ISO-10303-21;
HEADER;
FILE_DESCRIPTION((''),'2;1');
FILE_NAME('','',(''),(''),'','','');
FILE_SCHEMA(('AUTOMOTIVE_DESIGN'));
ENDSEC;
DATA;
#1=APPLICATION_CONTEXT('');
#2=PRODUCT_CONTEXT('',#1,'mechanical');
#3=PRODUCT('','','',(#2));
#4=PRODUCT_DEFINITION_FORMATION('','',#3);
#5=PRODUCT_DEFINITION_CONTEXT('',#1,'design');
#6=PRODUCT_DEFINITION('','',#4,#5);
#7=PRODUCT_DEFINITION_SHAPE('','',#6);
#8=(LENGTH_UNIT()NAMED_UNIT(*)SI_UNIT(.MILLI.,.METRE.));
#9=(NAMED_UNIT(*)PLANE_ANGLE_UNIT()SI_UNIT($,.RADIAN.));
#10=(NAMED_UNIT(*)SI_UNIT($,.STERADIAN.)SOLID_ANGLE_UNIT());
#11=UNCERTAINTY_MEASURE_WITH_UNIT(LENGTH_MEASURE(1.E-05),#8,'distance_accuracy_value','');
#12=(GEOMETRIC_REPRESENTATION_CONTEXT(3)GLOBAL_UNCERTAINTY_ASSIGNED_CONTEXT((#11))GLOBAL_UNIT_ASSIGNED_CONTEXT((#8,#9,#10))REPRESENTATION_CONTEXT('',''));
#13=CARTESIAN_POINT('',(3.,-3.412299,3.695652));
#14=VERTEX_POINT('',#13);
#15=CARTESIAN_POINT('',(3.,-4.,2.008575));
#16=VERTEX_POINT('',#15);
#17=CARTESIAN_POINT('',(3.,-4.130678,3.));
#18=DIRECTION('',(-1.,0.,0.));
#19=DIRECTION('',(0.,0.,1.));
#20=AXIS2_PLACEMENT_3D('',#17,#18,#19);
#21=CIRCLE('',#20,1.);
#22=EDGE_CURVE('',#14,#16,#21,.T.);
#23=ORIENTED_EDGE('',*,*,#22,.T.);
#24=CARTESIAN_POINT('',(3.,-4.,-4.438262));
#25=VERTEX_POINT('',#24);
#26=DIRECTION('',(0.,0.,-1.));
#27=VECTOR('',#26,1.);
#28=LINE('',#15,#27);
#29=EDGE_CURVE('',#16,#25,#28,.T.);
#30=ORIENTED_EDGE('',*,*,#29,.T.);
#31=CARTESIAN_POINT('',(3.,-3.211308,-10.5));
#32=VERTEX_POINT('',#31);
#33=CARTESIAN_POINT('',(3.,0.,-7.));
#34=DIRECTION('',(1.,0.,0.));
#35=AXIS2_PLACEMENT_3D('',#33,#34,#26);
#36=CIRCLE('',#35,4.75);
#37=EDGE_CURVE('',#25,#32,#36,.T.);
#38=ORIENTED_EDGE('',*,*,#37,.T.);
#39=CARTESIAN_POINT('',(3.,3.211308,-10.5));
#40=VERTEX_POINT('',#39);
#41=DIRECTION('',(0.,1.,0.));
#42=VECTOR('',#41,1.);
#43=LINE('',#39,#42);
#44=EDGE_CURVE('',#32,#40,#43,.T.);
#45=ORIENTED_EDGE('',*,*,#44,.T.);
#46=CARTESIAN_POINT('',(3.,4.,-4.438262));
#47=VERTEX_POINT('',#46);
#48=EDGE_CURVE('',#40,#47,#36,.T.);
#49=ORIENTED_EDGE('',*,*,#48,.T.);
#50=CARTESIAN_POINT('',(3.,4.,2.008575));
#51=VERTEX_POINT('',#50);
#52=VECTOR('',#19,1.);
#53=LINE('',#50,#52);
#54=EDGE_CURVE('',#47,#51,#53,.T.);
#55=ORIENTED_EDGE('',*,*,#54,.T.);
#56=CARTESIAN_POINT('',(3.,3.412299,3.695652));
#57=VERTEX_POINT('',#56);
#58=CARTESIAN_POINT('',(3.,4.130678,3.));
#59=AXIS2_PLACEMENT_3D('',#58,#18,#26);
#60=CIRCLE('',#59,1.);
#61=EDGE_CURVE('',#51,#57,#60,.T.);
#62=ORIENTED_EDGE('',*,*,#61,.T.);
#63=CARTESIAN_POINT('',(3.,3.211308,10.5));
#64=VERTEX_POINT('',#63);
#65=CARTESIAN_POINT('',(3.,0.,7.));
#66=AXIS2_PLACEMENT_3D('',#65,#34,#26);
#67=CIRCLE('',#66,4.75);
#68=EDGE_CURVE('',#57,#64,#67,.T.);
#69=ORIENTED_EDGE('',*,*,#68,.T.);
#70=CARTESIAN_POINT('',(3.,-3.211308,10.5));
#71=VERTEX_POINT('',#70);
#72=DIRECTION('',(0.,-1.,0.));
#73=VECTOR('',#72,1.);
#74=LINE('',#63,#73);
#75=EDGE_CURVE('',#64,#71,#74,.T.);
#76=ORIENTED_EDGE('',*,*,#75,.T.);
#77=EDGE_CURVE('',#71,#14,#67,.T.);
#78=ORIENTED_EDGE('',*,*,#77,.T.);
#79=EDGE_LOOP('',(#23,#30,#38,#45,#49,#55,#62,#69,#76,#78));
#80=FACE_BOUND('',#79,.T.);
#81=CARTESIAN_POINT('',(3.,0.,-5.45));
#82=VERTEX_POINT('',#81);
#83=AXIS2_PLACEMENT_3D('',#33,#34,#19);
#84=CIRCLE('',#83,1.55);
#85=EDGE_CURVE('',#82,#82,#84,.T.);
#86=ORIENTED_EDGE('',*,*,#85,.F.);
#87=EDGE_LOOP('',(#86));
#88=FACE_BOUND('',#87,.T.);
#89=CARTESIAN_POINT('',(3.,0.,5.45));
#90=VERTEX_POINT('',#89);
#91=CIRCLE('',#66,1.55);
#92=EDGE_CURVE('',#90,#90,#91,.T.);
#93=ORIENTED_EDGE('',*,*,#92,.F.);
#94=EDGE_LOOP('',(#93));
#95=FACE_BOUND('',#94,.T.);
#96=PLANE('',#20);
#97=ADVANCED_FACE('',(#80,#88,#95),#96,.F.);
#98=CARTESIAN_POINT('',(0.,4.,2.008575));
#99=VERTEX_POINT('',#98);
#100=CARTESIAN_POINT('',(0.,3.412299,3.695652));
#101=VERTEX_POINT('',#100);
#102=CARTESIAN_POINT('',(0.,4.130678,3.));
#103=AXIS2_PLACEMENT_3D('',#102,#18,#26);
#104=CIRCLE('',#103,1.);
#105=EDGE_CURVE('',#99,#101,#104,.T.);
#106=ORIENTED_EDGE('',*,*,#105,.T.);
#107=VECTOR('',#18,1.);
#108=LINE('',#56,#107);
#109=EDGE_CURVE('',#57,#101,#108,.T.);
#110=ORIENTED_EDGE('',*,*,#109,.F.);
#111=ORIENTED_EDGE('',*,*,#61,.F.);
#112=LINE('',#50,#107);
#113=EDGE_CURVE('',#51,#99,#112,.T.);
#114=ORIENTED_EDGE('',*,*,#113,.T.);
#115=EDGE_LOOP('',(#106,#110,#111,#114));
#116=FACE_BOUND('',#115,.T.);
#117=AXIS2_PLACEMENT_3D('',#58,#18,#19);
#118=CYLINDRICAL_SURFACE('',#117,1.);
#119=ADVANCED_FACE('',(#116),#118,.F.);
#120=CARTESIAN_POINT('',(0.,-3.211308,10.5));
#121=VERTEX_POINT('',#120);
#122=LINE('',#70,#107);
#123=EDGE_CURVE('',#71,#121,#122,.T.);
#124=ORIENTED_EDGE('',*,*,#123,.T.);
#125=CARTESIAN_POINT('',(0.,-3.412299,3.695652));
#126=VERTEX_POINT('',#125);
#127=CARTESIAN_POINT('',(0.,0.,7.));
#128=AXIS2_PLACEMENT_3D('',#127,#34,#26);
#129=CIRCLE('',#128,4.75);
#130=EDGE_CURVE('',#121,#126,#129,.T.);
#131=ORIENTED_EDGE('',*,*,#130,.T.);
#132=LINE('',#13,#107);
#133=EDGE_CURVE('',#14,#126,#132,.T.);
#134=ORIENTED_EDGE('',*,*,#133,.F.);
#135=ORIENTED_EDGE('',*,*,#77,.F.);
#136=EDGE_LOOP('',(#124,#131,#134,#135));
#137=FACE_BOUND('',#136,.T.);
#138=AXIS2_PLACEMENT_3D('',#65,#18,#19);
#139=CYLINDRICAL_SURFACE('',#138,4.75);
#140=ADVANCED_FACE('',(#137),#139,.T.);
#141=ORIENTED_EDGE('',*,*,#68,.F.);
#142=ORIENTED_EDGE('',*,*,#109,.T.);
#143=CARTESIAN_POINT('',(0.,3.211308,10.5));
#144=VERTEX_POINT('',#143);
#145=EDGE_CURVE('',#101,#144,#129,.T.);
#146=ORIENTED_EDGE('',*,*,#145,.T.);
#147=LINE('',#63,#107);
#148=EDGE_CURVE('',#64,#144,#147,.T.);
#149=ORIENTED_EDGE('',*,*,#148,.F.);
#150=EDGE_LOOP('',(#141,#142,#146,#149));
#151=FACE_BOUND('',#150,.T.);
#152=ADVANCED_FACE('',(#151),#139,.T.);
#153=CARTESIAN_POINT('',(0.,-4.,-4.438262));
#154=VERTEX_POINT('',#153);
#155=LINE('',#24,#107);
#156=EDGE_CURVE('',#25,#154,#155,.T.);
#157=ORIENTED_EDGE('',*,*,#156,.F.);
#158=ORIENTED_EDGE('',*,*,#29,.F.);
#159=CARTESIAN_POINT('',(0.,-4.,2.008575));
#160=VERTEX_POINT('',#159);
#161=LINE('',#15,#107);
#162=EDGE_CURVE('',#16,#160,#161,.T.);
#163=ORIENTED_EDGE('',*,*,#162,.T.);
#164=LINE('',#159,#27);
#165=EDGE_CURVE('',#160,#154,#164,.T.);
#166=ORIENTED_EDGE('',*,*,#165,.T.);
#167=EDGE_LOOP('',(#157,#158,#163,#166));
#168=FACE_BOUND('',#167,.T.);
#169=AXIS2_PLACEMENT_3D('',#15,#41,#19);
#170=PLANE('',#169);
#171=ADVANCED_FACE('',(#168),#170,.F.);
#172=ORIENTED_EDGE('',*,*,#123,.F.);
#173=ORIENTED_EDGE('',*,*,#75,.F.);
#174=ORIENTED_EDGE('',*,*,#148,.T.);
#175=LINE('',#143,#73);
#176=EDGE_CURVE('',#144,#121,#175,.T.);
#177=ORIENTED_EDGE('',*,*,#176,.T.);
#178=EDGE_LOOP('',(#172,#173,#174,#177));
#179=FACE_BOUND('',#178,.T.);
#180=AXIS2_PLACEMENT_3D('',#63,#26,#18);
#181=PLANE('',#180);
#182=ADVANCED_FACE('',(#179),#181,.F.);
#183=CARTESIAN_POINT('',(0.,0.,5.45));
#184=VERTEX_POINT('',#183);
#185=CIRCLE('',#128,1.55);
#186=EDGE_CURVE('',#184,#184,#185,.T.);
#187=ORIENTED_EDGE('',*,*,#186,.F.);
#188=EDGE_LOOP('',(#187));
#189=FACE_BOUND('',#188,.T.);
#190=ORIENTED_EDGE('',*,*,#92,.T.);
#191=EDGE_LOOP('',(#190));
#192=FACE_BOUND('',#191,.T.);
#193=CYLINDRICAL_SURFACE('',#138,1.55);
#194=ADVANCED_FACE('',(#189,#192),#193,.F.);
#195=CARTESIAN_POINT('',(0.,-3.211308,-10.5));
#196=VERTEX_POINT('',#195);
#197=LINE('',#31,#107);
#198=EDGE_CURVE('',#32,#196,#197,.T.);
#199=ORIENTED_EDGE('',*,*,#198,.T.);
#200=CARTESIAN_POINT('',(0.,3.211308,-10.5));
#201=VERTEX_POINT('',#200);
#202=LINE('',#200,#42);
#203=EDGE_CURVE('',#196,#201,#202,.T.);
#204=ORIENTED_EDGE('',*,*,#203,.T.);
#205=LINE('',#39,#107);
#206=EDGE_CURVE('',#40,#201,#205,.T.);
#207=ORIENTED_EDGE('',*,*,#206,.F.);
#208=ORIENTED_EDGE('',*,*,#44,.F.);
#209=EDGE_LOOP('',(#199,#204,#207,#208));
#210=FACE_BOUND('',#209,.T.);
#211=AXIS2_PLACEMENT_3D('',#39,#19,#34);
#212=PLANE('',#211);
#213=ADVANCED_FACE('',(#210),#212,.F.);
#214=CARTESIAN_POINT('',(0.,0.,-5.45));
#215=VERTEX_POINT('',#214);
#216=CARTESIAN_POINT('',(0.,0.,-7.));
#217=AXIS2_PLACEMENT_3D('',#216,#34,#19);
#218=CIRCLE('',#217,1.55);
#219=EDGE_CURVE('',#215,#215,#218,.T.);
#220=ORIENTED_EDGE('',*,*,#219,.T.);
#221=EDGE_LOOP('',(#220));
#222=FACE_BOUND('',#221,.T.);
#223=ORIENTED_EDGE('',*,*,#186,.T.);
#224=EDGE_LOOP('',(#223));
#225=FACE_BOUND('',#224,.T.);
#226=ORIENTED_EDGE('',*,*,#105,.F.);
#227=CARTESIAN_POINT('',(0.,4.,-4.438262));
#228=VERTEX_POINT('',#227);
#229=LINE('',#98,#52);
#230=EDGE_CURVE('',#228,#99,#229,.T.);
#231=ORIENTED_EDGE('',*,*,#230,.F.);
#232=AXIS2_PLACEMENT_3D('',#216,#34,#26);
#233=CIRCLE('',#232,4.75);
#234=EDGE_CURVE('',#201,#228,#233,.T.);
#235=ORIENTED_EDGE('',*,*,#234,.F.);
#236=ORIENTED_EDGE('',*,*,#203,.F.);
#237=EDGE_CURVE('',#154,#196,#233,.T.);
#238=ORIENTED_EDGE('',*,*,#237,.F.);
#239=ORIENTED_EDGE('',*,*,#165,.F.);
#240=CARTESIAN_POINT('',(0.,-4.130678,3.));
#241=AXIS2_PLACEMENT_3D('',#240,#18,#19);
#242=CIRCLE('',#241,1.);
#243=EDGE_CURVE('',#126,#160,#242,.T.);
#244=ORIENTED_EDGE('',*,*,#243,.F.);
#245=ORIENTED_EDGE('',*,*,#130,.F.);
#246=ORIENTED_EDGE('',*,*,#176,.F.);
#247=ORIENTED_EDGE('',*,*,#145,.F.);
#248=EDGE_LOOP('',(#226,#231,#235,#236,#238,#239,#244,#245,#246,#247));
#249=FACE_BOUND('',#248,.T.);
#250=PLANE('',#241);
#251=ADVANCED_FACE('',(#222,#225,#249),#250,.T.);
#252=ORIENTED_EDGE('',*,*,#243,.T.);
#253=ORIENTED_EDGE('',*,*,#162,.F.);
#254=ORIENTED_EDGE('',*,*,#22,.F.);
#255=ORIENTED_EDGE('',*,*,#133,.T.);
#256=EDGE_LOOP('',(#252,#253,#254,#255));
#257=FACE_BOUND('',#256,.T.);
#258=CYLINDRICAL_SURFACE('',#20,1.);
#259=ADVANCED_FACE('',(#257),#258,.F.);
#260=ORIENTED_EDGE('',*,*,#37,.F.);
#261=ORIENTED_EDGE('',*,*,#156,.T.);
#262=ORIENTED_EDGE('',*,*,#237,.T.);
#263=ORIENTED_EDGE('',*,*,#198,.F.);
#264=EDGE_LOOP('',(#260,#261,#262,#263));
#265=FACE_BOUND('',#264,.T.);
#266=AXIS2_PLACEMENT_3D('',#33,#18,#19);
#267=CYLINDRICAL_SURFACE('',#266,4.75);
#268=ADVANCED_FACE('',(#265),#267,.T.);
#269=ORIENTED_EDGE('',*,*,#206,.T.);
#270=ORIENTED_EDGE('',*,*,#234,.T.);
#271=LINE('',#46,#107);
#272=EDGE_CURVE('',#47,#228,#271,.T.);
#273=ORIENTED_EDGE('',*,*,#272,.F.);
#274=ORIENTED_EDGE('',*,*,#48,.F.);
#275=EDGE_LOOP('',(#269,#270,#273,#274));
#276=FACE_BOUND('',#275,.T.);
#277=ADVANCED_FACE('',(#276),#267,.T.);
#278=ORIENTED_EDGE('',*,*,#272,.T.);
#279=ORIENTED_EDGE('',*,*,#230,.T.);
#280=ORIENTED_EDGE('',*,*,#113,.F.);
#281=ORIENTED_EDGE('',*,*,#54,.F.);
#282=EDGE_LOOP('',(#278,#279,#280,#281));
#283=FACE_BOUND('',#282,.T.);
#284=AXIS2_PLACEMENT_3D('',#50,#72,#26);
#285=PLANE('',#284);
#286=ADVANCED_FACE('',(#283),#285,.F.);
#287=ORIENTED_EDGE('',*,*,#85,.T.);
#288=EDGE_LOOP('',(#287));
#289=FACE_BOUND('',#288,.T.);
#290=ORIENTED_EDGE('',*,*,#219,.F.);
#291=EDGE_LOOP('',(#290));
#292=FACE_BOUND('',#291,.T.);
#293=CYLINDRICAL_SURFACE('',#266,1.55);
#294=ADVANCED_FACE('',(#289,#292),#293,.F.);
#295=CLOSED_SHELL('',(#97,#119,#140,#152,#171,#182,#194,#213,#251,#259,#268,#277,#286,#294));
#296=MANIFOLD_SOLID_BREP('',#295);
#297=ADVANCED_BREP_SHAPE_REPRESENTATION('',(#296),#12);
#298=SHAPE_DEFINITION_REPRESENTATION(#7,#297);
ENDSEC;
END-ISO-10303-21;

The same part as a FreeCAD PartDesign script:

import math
import FreeCAD as App
import Part
import Sketcher
from FreeCAD import Vector

doc = App.newDocument("Part")
body = doc.addObject("PartDesign::Body", "Body")

# Sketch on YZ plane
sketch1 = body.newObject("Sketcher::SketchObject", "Sketch")
sketch1.AttachmentSupport = (doc.getObject("YZ_Plane"), [""])
sketch1.MapMode = "FlatFace"
sketch1.addGeometry(Part.LineSegment(Vector(4, -4.438262, 0), Vector(4, 2.008575, 0)), False)
sketch1.addGeometry(Part.ArcOfCircle(Part.Circle(Vector(4.130678, 3, 0), Vector(0, 0, 1), 1), math.radians(135.92079), math.radians(262.491232)), False)
sketch1.addGeometry(Part.ArcOfCircle(Part.Circle(Vector(0, 7, 0), Vector(0, 0, 1), 4.75), math.radians(-44.07921), math.radians(47.463102)), False)
sketch1.addGeometry(Part.LineSegment(Vector(3.211308, 10.5, 0), Vector(-3.211308, 10.5, 0)), False)
sketch1.addGeometry(Part.ArcOfCircle(Part.Circle(Vector(0, 7, 0), Vector(0, 0, 1), 4.75), math.radians(132.536898), math.radians(224.07921)), False)
sketch1.addGeometry(Part.ArcOfCircle(Part.Circle(Vector(-4.130678, 3, 0), Vector(0, 0, 1), 1), math.radians(-82.491232), math.radians(44.07921)), False)
sketch1.addGeometry(Part.LineSegment(Vector(-4, 2.008575, 0), Vector(-4, -4.438262, 0)), False)
sketch1.addGeometry(Part.ArcOfCircle(Part.Circle(Vector(0, -7, 0), Vector(0, 0, 1), 4.75), math.radians(147.363103), math.radians(227.463102)), False)
sketch1.addGeometry(Part.LineSegment(Vector(-3.211308, -10.5, 0), Vector(3.211308, -10.5, 0)), False)
sketch1.addGeometry(Part.ArcOfCircle(Part.Circle(Vector(0, -7, 0), Vector(0, 0, 1), 4.75), math.radians(-47.463102), math.radians(32.636897)), False)
sketch1.addGeometry(Part.Circle(Vector(0, -7, 0), Vector(0, 0, 1), 1.55), False)
sketch1.addGeometry(Part.Circle(Vector(0, 7, 0), Vector(0, 0, 1), 1.55), False)
sketch1.addConstraint(Sketcher.Constraint("Coincident", 0, 2, 1, 2))
sketch1.addConstraint(Sketcher.Constraint("Tangent", 1, 1, 2, 1))
sketch1.addConstraint(Sketcher.Constraint("Coincident", 2, 2, 3, 1))
sketch1.addConstraint(Sketcher.Constraint("Coincident", 3, 2, 4, 1))
sketch1.addConstraint(Sketcher.Constraint("Tangent", 4, 2, 5, 2))
sketch1.addConstraint(Sketcher.Constraint("Coincident", 5, 1, 6, 1))
sketch1.addConstraint(Sketcher.Constraint("Coincident", 6, 2, 7, 1))
sketch1.addConstraint(Sketcher.Constraint("Coincident", 7, 2, 8, 1))
sketch1.addConstraint(Sketcher.Constraint("Coincident", 8, 2, 9, 1))
sketch1.addConstraint(Sketcher.Constraint("Coincident", 9, 2, 0, 1))
sketch1.addConstraint(Sketcher.Constraint("Vertical", 0))
sketch1.addConstraint(Sketcher.Constraint("Horizontal", 3))
sketch1.addConstraint(Sketcher.Constraint("Vertical", 6))
sketch1.addConstraint(Sketcher.Constraint("Horizontal", 8))
sketch1.addConstraint(Sketcher.Constraint("Coincident", 4, 3, 2, 3))
sketch1.addConstraint(Sketcher.Constraint("Coincident", 9, 3, 7, 3))
sketch1.addConstraint(Sketcher.Constraint("Coincident", 10, 3, 7, 3))
sketch1.addConstraint(Sketcher.Constraint("Coincident", 11, 3, 2, 3))
sketch1.addConstraint(Sketcher.Constraint("Equal", 2, 4))
sketch1.addConstraint(Sketcher.Constraint("Equal", 1, 5))
sketch1.addConstraint(Sketcher.Constraint("Equal", 4, 7))
sketch1.addConstraint(Sketcher.Constraint("Equal", 7, 9))
sketch1.addConstraint(Sketcher.Constraint("Equal", 10, 11))
sketch1.addConstraint(Sketcher.Constraint("Symmetric", 2, 3, 7, 3, -1, 1))
sketch1.addConstraint(Sketcher.Constraint("Symmetric", 1, 3, 5, 3, -2))
sketch1.addConstraint(Sketcher.Constraint("Horizontal", 0, 2, 5, 1))
sketch1.addConstraint(Sketcher.Constraint("Vertical", 3, 2, 7, 2))
sketch1.addConstraint(Sketcher.Constraint("Radius", 1, 1.0))
sketch1.addConstraint(Sketcher.Constraint("Diameter", 10, 3.1))
sketch1.addConstraint(Sketcher.Constraint("Radius", 2, 4.75))
sketch1.addConstraint(Sketcher.Constraint("DistanceY", -1, 1, 1, 3, 3.0))
sketch1.addConstraint(Sketcher.Constraint("DistanceY", -1, 1, 2, 3, 7.0))
sketch1.addConstraint(Sketcher.Constraint("DistanceX", -1, 1, 0, 2, 4.0))
sketch1.addConstraint(Sketcher.Constraint("DistanceY", -1, 1, 2, 2, 10.5))
pad1 = body.newObject("PartDesign::Pad", "Pad")
pad1.Profile = sketch1
pad1.Length = 3

doc.recompute()
